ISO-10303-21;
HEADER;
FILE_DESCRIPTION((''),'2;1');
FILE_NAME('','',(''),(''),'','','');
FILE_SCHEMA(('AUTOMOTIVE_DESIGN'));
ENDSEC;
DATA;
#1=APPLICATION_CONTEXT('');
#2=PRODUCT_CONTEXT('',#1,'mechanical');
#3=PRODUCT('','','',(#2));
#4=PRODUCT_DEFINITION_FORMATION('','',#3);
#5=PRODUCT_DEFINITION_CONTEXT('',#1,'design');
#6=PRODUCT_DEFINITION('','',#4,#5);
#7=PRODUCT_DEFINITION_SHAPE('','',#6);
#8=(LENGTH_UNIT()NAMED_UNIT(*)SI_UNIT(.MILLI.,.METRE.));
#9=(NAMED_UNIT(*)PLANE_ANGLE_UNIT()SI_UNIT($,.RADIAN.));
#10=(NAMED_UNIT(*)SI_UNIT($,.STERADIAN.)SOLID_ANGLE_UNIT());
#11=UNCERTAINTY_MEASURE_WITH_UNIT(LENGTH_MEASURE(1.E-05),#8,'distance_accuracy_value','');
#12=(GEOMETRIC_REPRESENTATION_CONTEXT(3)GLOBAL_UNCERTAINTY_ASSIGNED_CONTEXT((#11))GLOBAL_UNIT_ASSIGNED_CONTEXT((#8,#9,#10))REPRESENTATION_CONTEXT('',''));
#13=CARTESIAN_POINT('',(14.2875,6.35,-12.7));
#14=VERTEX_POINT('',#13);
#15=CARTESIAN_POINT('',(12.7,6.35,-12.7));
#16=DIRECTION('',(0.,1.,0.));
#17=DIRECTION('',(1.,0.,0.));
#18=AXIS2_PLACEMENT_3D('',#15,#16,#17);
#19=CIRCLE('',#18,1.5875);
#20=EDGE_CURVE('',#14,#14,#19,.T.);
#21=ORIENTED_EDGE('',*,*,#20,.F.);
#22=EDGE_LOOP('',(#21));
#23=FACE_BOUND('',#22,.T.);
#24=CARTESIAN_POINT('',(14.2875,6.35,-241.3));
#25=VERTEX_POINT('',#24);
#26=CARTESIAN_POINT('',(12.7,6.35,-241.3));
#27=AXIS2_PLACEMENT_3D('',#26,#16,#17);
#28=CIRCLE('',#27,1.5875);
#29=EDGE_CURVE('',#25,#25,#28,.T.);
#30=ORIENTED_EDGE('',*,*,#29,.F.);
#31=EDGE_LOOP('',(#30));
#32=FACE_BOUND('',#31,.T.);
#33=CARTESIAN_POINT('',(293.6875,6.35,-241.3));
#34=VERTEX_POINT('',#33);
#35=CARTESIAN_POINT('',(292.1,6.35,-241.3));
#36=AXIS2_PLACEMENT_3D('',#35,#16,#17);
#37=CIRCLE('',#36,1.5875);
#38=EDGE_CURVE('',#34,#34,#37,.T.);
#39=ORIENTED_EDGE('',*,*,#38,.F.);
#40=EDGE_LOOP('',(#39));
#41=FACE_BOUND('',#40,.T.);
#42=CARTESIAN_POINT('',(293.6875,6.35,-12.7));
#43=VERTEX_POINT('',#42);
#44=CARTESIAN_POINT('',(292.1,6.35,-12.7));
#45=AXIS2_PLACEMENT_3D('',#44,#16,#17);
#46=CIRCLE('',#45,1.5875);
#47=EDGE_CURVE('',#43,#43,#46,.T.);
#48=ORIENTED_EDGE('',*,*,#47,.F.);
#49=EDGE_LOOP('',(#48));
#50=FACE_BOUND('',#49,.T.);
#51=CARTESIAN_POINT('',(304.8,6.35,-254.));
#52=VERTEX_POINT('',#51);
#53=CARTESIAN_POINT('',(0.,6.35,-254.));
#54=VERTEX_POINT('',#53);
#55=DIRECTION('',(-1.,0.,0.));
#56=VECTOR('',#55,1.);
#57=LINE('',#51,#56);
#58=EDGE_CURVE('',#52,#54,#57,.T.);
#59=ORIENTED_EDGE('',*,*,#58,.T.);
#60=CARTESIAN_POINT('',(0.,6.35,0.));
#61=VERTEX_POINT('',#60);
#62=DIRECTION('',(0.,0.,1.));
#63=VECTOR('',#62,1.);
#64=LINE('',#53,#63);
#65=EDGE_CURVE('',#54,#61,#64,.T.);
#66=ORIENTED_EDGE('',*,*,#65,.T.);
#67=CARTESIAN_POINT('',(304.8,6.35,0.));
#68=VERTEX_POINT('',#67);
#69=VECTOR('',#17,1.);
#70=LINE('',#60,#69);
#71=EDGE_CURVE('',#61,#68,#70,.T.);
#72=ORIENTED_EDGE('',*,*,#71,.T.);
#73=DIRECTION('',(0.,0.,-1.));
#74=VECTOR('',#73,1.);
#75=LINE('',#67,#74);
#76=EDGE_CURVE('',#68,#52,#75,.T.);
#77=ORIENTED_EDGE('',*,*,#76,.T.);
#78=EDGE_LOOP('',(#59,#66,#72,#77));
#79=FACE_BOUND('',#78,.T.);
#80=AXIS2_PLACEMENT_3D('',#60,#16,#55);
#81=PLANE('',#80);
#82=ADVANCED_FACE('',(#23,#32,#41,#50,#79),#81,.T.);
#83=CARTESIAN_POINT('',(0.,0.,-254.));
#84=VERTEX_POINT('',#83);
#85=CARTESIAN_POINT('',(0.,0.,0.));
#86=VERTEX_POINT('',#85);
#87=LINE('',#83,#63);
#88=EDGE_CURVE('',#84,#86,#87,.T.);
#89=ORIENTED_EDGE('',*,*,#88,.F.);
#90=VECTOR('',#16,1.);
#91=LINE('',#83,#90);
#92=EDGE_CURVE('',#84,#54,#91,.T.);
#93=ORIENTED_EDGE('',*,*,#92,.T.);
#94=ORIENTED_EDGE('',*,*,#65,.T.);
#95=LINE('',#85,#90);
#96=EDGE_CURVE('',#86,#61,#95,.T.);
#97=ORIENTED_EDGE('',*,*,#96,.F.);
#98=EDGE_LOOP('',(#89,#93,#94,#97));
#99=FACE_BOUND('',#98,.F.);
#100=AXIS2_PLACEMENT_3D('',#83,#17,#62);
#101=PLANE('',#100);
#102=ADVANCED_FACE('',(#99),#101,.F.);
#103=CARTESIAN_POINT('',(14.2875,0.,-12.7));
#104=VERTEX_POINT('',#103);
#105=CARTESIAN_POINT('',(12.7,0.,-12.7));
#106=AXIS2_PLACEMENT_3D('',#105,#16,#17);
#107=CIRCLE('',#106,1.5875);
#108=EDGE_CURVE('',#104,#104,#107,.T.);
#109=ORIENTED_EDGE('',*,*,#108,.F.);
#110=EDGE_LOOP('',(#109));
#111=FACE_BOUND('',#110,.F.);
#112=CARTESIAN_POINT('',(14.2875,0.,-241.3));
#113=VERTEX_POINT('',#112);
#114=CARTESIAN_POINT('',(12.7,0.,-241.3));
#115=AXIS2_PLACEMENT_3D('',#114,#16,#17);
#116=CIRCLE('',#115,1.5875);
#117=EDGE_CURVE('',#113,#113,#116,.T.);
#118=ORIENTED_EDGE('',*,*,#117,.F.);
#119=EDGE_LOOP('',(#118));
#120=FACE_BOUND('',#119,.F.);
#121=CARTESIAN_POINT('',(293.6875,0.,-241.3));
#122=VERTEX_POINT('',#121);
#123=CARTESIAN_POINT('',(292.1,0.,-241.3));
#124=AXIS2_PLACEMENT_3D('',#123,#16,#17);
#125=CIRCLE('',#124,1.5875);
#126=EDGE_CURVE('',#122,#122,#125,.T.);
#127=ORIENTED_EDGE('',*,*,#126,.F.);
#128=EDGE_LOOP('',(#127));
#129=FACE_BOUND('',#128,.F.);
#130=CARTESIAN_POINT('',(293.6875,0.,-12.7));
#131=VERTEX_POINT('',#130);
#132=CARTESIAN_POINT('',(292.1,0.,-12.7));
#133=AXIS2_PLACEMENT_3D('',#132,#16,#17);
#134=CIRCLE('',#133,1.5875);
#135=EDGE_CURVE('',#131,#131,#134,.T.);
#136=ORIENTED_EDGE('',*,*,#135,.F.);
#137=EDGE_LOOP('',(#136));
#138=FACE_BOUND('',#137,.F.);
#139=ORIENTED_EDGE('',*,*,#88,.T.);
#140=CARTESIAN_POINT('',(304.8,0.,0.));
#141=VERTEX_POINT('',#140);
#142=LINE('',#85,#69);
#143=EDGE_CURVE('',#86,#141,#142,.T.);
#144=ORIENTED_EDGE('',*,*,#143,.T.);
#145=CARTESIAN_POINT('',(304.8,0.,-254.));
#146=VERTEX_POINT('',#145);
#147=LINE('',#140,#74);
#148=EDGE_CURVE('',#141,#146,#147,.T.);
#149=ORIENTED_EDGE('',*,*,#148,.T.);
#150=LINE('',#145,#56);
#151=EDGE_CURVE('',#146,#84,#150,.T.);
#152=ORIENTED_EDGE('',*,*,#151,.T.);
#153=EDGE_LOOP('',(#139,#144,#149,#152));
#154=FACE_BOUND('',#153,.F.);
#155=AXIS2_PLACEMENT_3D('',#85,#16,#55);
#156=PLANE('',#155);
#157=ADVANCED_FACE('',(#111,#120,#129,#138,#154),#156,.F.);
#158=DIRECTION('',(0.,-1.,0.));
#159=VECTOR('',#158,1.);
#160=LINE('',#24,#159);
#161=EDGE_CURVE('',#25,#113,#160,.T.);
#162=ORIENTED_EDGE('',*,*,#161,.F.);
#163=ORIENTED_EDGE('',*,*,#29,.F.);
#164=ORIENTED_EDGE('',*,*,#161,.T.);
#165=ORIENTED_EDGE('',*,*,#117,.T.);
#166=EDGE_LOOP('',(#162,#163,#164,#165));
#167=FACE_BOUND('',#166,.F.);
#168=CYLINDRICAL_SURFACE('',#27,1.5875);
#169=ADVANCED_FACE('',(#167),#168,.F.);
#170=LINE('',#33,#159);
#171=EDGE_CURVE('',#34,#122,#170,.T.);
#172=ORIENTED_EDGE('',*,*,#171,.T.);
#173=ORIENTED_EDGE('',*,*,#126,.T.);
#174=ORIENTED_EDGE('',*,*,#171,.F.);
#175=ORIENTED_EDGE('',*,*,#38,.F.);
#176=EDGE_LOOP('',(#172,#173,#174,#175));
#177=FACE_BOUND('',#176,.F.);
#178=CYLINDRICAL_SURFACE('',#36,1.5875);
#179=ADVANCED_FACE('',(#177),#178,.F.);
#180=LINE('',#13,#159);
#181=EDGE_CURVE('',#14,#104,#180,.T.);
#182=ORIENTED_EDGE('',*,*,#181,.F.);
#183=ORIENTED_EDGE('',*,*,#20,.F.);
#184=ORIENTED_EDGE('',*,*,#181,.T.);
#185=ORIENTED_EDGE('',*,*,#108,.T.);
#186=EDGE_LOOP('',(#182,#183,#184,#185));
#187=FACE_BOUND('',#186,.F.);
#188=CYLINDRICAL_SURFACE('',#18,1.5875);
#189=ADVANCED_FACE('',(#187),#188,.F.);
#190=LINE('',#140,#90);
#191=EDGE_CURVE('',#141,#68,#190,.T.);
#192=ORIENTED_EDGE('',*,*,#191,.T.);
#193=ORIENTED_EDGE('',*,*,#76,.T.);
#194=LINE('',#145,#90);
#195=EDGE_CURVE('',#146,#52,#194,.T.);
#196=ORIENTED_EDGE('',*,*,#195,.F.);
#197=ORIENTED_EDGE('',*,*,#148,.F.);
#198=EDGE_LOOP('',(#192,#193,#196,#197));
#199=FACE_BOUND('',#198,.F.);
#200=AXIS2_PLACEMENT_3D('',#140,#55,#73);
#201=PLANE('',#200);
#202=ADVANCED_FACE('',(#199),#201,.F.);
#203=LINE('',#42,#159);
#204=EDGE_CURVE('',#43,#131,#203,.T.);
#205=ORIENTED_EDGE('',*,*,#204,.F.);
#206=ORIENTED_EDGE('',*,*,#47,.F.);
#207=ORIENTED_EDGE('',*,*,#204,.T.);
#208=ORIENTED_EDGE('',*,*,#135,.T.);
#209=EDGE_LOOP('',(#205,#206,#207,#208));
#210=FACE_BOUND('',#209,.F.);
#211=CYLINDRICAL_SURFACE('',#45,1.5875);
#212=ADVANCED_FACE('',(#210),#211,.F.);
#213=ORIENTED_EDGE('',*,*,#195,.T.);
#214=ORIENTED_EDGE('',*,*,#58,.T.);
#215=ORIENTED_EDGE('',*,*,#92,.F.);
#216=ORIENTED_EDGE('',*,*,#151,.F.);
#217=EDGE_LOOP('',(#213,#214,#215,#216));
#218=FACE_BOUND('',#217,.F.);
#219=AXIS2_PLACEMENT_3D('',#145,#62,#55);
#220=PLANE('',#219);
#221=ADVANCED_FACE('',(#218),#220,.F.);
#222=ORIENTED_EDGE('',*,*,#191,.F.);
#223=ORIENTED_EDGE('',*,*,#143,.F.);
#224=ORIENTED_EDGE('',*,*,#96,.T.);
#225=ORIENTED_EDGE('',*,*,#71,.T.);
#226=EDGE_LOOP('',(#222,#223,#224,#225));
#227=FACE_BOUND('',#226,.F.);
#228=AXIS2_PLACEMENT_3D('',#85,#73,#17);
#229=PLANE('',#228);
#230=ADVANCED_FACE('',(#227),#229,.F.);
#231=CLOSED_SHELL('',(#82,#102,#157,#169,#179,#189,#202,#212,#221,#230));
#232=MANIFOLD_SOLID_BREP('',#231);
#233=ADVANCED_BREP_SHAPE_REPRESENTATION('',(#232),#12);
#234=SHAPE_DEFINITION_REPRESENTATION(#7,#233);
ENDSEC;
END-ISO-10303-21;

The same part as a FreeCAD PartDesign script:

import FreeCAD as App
import Part
import Sketcher
from FreeCAD import Vector
Q = App.Units.Quantity

doc = App.newDocument("Part")
params = doc.addObject("Spreadsheet::Sheet", "Params")
for row, (alias, value) in enumerate([
    ("sketch1_width", "12 in"),
    ("sketch1_height", "10 in"),
    ("pad1_length", "0.25 in"),
    ("sketch2_diameter", "0.125 in"),
    ("pocket1_length", "0.25 in"),
], start=1):
    params.set(f"A{row}", alias)
    params.set(f"B{row}", "=" + value)
    params.setAlias(f"B{row}", alias)

body = doc.addObject("PartDesign::Body", "Body")

# Sketch on XZ plane
sketch1 = doc.addObject("Sketcher::SketchObject", "Sketch")
body.addObject(sketch1)
sketch1.AttachmentSupport = (doc.XZ_Plane, [""])
sketch1.MapMode = "FlatFace"
sketch1.addGeometry([
    Part.LineSegment(Vector(0, -254, 0), Vector(0, 0, 0)),
    Part.LineSegment(Vector(0, 0, 0), Vector(305, 0, 0)),
    Part.LineSegment(Vector(305, 0, 0), Vector(305, -254, 0)),
    Part.LineSegment(Vector(305, -254, 0), Vector(0, -254, 0)),
], False)
sketch1.addConstraint([
    Sketcher.Constraint("Coincident", 0, 2, 1, 1),
    Sketcher.Constraint("Coincident", 1, 2, 2, 1),
    Sketcher.Constraint("Coincident", 2, 2, 3, 1),
    Sketcher.Constraint("Coincident", 3, 2, 0, 1),
    Sketcher.Constraint("Vertical", 0),
    Sketcher.Constraint("Horizontal", 1),
    Sketcher.Constraint("Vertical", 2),
    Sketcher.Constraint("Horizontal", 3),
    Sketcher.Constraint("Coincident", 0, 2, -1, 1),
    Sketcher.Constraint("DistanceX", 1, 1, 1, 2, Q("12 in")),
    Sketcher.Constraint("DistanceY", 0, 1, 0, 2, Q("10 in")),
])
sketch1.setExpression("Constraints[9]", "Params.sketch1_width")
sketch1.setExpression("Constraints[10]", "Params.sketch1_height")
pad1 = doc.addObject("PartDesign::Pad", "Pad")
body.addObject(pad1)
pad1.Profile = sketch1
pad1.setExpression("Length", "Params.pad1_length")
pad1.Reversed = True

# Sketch on XZ plane
sketch2 = doc.addObject("Sketcher::SketchObject", "Sketch001")
body.addObject(sketch2)
sketch2.AttachmentSupport = (doc.XZ_Plane, [""])
sketch2.MapMode = "FlatFace"
sketch2.AttachmentOffset = App.Placement(Vector(0, 0, -0.25 * 25.4), App.Rotation())
sketch2.addGeometry([
    Part.Circle(Vector(12.7, -12.7, 0), Vector(0, 0, 1), 1.6),
    Part.Circle(Vector(12.7, -241.3, 0), Vector(0, 0, 1), 1.6),
    Part.Circle(Vector(292.1, -12.7, 0), Vector(0, 0, 1), 1.6),
    Part.Circle(Vector(292.1, -241.3, 0), Vector(0, 0, 1), 1.6),
], False)
sketch2.addConstraint([
    Sketcher.Constraint("Equal", 0, 1),
    Sketcher.Constraint("Equal", 1, 2),
    Sketcher.Constraint("Equal", 2, 3),
    Sketcher.Constraint("Horizontal", 0, 3, 2, 3),
    Sketcher.Constraint("Horizontal", 1, 3, 3, 3),
    Sketcher.Constraint("Vertical", 0, 3, 1, 3),
    Sketcher.Constraint("Vertical", 2, 3, 3, 3),
    Sketcher.Constraint("Diameter", 0, Q("0.125 in")),
    Sketcher.Constraint("DistanceX", -1, 1, 0, 3, Q("0.5 in")),
    Sketcher.Constraint("DistanceY", 0, 3, -1, 1, Q("0.5 in")),
    Sketcher.Constraint("DistanceY", 1, 3, 0, 3, Q("9 in")),
    Sketcher.Constraint("DistanceX", 0, 3, 2, 3, Q("11 in")),
])
sketch2.setExpression("Constraints[7]", "Params.sketch2_diameter")
pocket1 = doc.addObject("PartDesign::Pocket", "Pocket")
body.addObject(pocket1)
pocket1.Profile = sketch2
pocket1.setExpression("Length", "Params.pocket1_length")
pocket1.Reversed = True

doc.recompute()
